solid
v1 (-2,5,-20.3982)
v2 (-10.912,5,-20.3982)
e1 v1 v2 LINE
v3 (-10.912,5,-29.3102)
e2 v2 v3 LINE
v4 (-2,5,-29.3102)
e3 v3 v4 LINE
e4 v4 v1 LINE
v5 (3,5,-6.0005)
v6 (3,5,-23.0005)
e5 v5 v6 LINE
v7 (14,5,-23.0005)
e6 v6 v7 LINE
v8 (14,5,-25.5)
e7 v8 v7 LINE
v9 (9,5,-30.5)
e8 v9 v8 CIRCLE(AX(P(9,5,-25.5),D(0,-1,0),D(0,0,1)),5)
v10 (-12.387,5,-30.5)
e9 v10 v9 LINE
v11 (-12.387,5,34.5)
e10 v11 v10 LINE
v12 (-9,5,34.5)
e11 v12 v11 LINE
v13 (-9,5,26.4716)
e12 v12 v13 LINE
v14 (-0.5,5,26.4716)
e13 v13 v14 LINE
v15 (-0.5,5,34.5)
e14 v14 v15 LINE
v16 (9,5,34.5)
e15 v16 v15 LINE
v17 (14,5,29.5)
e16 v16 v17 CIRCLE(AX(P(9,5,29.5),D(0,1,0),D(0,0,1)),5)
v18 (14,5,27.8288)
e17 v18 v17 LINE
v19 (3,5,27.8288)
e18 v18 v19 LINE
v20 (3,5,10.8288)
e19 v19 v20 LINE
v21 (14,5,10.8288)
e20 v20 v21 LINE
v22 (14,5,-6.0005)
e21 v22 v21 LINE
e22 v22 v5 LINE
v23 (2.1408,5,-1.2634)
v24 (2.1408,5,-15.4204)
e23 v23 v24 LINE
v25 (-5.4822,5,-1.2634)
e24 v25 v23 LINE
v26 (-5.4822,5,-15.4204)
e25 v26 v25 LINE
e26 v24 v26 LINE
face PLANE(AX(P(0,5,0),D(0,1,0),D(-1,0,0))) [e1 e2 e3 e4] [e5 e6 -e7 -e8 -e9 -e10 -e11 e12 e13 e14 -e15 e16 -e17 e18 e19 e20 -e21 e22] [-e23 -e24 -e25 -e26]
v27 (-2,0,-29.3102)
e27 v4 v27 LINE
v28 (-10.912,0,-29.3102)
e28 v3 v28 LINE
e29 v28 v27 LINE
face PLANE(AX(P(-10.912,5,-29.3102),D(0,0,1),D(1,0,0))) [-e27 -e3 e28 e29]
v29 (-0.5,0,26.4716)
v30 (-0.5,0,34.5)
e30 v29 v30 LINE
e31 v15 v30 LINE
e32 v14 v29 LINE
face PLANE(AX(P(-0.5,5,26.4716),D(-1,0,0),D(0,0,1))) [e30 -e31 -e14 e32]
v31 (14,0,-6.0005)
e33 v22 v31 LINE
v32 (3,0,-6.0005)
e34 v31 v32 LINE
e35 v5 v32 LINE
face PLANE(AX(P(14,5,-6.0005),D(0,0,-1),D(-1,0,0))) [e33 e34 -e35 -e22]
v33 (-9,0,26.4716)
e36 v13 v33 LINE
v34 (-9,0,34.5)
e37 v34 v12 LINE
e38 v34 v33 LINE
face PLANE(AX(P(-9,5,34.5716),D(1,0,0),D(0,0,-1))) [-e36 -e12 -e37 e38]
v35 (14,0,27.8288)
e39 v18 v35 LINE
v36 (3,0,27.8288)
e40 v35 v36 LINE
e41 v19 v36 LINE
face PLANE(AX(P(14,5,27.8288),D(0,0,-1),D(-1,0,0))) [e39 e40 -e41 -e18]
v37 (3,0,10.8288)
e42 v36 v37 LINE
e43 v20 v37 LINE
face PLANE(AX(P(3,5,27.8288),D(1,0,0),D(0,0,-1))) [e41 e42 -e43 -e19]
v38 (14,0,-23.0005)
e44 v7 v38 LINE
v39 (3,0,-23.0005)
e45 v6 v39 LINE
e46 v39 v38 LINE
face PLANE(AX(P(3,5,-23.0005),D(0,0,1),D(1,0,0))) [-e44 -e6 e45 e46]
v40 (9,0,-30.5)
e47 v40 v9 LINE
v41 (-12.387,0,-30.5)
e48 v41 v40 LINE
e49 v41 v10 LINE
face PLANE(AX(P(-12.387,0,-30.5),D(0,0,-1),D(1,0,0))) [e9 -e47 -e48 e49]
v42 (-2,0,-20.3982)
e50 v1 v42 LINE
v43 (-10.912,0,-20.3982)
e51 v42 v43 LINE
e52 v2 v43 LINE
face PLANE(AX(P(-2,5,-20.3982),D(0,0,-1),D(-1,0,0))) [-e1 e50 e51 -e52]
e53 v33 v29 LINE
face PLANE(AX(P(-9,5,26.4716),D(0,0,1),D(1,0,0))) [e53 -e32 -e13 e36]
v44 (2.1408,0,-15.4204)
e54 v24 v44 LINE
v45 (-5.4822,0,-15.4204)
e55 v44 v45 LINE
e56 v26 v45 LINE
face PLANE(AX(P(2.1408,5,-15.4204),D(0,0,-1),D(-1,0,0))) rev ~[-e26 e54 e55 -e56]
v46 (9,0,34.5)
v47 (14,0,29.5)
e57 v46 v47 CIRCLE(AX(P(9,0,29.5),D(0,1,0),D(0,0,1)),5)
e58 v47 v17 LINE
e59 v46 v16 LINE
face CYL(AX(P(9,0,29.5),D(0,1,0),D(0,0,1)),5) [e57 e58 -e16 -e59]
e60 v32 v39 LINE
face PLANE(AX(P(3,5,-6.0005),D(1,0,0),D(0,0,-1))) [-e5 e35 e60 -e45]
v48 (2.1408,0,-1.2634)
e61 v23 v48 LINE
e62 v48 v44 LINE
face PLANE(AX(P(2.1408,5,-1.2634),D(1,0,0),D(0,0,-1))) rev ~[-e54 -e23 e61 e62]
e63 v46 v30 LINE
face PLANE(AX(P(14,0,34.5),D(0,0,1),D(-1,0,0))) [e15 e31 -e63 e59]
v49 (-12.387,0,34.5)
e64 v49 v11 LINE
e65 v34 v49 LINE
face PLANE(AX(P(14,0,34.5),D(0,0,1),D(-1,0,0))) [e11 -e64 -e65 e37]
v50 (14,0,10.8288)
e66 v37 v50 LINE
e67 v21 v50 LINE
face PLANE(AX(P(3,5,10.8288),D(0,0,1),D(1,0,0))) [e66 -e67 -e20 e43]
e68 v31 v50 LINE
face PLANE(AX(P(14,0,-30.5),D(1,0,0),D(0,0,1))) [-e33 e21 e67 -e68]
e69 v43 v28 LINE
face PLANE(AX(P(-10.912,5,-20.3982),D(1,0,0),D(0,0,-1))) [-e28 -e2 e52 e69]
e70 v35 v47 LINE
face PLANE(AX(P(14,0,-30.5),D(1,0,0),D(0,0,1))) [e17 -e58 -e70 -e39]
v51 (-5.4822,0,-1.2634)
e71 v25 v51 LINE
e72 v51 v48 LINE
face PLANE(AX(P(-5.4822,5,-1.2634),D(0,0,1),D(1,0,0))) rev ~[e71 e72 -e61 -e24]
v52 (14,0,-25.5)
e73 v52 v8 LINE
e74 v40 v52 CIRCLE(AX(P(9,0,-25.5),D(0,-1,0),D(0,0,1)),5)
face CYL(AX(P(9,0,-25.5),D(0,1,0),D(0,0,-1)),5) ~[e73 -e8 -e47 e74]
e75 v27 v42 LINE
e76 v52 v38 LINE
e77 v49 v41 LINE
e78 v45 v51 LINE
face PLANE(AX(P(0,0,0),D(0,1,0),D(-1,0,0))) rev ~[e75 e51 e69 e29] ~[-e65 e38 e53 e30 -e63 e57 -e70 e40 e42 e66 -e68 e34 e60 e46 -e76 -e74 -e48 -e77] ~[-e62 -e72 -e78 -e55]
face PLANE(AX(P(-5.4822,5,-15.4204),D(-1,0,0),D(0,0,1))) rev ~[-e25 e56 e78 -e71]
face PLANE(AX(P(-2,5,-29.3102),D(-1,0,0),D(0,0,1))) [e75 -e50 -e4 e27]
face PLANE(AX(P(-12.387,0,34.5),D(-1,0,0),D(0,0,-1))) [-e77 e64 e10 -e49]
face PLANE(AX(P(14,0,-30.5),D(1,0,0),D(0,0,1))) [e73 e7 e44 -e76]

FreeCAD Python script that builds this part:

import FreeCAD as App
import Part
import Sketcher

V = App.Vector
Q = App.Units.Quantity


def edges_at(feature, points):
    """Names of the edges that pass closest to the given points."""
    edges = feature.Shape.Edges
    near = lambda p: min(range(len(edges)), key=lambda i: edges[i].distToShape(Part.Vertex(*p))[0])
    return sorted({f"Edge{near(p) + 1}" for p in points})


def add_polygon(sketch, points):
    """Adds a closed chain of lines whose ends are joined by coincident constraints."""
    first, n = sketch.GeometryCount, len(points)
    for a, b in zip(points, points[1:] + points[:1]):
        sketch.addGeometry(Part.LineSegment(App.Vector(*a, 0), App.Vector(*b, 0)), False)
    for i in range(n):
        sketch.addConstraint(Sketcher.Constraint("Coincident", first + i, 2, first + (i + 1) % n, 1))

doc = App.newDocument("Part")
body = doc.addObject("PartDesign::Body", "Body")

# Sketch on XZ plane
sketch1 = doc.addObject("Sketcher::SketchObject", "Sketch")
body.addObject(sketch1)
sketch1.AttachmentSupport = (doc.XZ_Plane, [""])
sketch1.MapMode = "FlatFace"
add_polygon(sketch1, [(-12.387, 34.5), (14, 34.5), (14, -30.5), (-12.387, -30.5)])  # lines 0-3
sketch1.addConstraint(Sketcher.Constraint("Horizontal", 0))
sketch1.addConstraint(Sketcher.Constraint("Vertical", 1))
sketch1.addConstraint(Sketcher.Constraint("Horizontal", 2))
sketch1.addConstraint(Sketcher.Constraint("Vertical", 3))
sketch1.addConstraint(Sketcher.Constraint("DistanceY", 1, 2, 1, 1, Q("65 mm")))
sketch1.addConstraint(Sketcher.Constraint("DistanceX", 0, 1, 0, 2, Q("26.387 mm")))
sketch1.addConstraint(Sketcher.Constraint("DistanceX", -1, 1, 0, 2, Q("14 mm")))
sketch1.addConstraint(Sketcher.Constraint("DistanceY", -1, 1, 0, 2, Q("34.5 mm")))
pad1 = doc.addObject("PartDesign::Pad", "Pad")
body.addObject(pad1)
pad1.Profile = sketch1
pad1.Length = 5
pad1.Reversed = True
doc.recompute()

fillet = doc.addObject("PartDesign::Fillet", "Fillet")
body.addObject(fillet)
fillet.Base = (pad1, edges_at(pad1, [(14, 2.5, 34.5), (14, 2.5, -30.5)]))
fillet.Radius = 5

# Sketch on XZ plane
sketch2 = doc.addObject("Sketcher::SketchObject", "Sketch001")
body.addObject(sketch2)
sketch2.AttachmentSupport = (doc.XZ_Plane, [""])
sketch2.MapMode = "FlatFace"
sketch2.AttachmentOffset = App.Placement(V(0, 0, -5), App.Rotation())
add_polygon(sketch2, [(-9, 26.4716), (-9, 34.5716), (-0.5, 34.5716), (-0.5, 26.4716)])  # lines 0-3
sketch2.addConstraint(Sketcher.Constraint("Vertical", 0))
sketch2.addConstraint(Sketcher.Constraint("Horizontal", 1))
sketch2.addConstraint(Sketcher.Constraint("Vertical", 2))
sketch2.addConstraint(Sketcher.Constraint("Horizontal", 3))
sketch2.addConstraint(Sketcher.Constraint("DistanceX", 1, 1, 1, 2, Q("8.5 mm")))
sketch2.addConstraint(Sketcher.Constraint("DistanceY", 0, 1, 0, 2, Q("8.1 mm")))
sketch2.addConstraint(Sketcher.Constraint("DistanceX", 0, 2, -1, 1, Q("9 mm")))
sketch2.addConstraint(Sketcher.Constraint("DistanceY", -1, 1, 0, 2, Q("34.5716 mm")))
pocket1 = doc.addObject("PartDesign::Pocket", "Pocket")
body.addObject(pocket1)
pocket1.Profile = sketch2
pocket1.Type = "ThroughAll"
pocket1.Reversed = True

# Sketch on XZ plane
sketch3 = doc.addObject("Sketcher::SketchObject", "Sketch002")
body.addObject(sketch3)
sketch3.AttachmentSupport = (doc.XZ_Plane, [""])
sketch3.MapMode = "FlatFace"
sketch3.AttachmentOffset = App.Placement(V(0, 0, -5), App.Rotation())
add_polygon(sketch3, [(3, 27.8288), (14, 27.8288), (14, 10.8288), (3, 10.8288)])  # lines 0-3
add_polygon(sketch3, [(3, -6.0005), (14, -6.0005), (14, -23.0005), (3, -23.0005)])  # lines 4-7
sketch3.addConstraint(Sketcher.Constraint("Horizontal", 0))
sketch3.addConstraint(Sketcher.Constraint("Vertical", 1))
sketch3.addConstraint(Sketcher.Constraint("Horizontal", 2))
sketch3.addConstraint(Sketcher.Constraint("Vertical", 3))
sketch3.addConstraint(Sketcher.Constraint("Horizontal", 4))
sketch3.addConstraint(Sketcher.Constraint("Vertical", 5))
sketch3.addConstraint(Sketcher.Constraint("Horizontal", 6))
sketch3.addConstraint(Sketcher.Constraint("Vertical", 7))
sketch3.addConstraint(Sketcher.Constraint("Vertical", 1, 2, 4, 2))
sketch3.addConstraint(Sketcher.Constraint("Vertical", 3, 2, 6, 2))
sketch3.addConstraint(Sketcher.Constraint("Equal", 3, 5))
sketch3.addConstraint(Sketcher.Constraint("DistanceX", 0, 1, 0, 2, Q("11 mm")))
sketch3.addConstraint(Sketcher.Constraint("DistanceY", 1, 2, 1, 1, Q("17 mm")))
sketch3.addConstraint(Sketcher.Constraint("DistanceX", -1, 1, 0, 2, Q("14 mm")))
sketch3.addConstraint(Sketcher.Constraint("DistanceY", -1, 1, 0, 2, Q("27.8288 mm")))
sketch3.addConstraint(Sketcher.Constraint("DistanceY", 4, 2, -1, 1, Q("6.0005 mm")))
pocket2 = doc.addObject("PartDesign::Pocket", "Pocket001")
body.addObject(pocket2)
pocket2.Profile = sketch3
pocket2.Type = "ThroughAll"
pocket2.Reversed = True

# Sketch on XZ plane
sketch4 = doc.addObject("Sketcher::SketchObject", "Sketch003")
body.addObject(sketch4)
sketch4.AttachmentSupport = (doc.XZ_Plane, [""])
sketch4.MapMode = "FlatFace"
sketch4.AttachmentOffset = App.Placement(V(0, 0, -5), App.Rotation())
add_polygon(sketch4, [(2.1408, -1.2634), (2.1408, -15.4204), (-5.4822, -15.4204), (-5.4822, -1.2634)])  # lines 0-3
add_polygon(sketch4, [(-2, -29.3102), (-10.912, -29.3102), (-10.912, -20.3982), (-2, -20.3982)])  # lines 4-7
sketch4.addConstraint(Sketcher.Constraint("Vertical", 0))
sketch4.addConstraint(Sketcher.Constraint("Horizontal", 1))
sketch4.addConstraint(Sketcher.Constraint("Vertical", 2))
sketch4.addConstraint(Sketcher.Constraint("Horizontal", 3))
sketch4.addConstraint(Sketcher.Constraint("Horizontal", 4))
sketch4.addConstraint(Sketcher.Constraint("Vertical", 5))
sketch4.addConstraint(Sketcher.Constraint("Horizontal", 6))
sketch4.addConstraint(Sketcher.Constraint("Vertical", 7))
sketch4.addConstraint(Sketcher.Constraint("Equal", 6, 5))
sketch4.addConstraint(Sketcher.Constraint("DistanceX", 1, 2, 1, 1, Q("7.623 mm")))
sketch4.addConstraint(Sketcher.Constraint("DistanceX", 4, 2, 4, 1, Q("8.912 mm")))
sketch4.addConstraint(Sketcher.Constraint("DistanceY", 0, 2, 0, 1, Q("14.157 mm")))
sketch4.addConstraint(Sketcher.Constraint("DistanceX", 6, 2, -1, 1, Q("2 mm")))
sketch4.addConstraint(Sketcher.Constraint("DistanceX", -1, 1, 0, 2, Q("2.1408 mm")))
sketch4.addConstraint(Sketcher.Constraint("DistanceY", 0, 2, -1, 1, Q("15.4204 mm")))
sketch4.addConstraint(Sketcher.Constraint("DistanceY", 4, 2, -1, 1, Q("29.3102 mm")))
pocket3 = doc.addObject("PartDesign::Pocket", "Pocket002")
body.addObject(pocket3)
pocket3.Profile = sketch4
pocket3.Type = "ThroughAll"
pocket3.Reversed = True

doc.recompute()
